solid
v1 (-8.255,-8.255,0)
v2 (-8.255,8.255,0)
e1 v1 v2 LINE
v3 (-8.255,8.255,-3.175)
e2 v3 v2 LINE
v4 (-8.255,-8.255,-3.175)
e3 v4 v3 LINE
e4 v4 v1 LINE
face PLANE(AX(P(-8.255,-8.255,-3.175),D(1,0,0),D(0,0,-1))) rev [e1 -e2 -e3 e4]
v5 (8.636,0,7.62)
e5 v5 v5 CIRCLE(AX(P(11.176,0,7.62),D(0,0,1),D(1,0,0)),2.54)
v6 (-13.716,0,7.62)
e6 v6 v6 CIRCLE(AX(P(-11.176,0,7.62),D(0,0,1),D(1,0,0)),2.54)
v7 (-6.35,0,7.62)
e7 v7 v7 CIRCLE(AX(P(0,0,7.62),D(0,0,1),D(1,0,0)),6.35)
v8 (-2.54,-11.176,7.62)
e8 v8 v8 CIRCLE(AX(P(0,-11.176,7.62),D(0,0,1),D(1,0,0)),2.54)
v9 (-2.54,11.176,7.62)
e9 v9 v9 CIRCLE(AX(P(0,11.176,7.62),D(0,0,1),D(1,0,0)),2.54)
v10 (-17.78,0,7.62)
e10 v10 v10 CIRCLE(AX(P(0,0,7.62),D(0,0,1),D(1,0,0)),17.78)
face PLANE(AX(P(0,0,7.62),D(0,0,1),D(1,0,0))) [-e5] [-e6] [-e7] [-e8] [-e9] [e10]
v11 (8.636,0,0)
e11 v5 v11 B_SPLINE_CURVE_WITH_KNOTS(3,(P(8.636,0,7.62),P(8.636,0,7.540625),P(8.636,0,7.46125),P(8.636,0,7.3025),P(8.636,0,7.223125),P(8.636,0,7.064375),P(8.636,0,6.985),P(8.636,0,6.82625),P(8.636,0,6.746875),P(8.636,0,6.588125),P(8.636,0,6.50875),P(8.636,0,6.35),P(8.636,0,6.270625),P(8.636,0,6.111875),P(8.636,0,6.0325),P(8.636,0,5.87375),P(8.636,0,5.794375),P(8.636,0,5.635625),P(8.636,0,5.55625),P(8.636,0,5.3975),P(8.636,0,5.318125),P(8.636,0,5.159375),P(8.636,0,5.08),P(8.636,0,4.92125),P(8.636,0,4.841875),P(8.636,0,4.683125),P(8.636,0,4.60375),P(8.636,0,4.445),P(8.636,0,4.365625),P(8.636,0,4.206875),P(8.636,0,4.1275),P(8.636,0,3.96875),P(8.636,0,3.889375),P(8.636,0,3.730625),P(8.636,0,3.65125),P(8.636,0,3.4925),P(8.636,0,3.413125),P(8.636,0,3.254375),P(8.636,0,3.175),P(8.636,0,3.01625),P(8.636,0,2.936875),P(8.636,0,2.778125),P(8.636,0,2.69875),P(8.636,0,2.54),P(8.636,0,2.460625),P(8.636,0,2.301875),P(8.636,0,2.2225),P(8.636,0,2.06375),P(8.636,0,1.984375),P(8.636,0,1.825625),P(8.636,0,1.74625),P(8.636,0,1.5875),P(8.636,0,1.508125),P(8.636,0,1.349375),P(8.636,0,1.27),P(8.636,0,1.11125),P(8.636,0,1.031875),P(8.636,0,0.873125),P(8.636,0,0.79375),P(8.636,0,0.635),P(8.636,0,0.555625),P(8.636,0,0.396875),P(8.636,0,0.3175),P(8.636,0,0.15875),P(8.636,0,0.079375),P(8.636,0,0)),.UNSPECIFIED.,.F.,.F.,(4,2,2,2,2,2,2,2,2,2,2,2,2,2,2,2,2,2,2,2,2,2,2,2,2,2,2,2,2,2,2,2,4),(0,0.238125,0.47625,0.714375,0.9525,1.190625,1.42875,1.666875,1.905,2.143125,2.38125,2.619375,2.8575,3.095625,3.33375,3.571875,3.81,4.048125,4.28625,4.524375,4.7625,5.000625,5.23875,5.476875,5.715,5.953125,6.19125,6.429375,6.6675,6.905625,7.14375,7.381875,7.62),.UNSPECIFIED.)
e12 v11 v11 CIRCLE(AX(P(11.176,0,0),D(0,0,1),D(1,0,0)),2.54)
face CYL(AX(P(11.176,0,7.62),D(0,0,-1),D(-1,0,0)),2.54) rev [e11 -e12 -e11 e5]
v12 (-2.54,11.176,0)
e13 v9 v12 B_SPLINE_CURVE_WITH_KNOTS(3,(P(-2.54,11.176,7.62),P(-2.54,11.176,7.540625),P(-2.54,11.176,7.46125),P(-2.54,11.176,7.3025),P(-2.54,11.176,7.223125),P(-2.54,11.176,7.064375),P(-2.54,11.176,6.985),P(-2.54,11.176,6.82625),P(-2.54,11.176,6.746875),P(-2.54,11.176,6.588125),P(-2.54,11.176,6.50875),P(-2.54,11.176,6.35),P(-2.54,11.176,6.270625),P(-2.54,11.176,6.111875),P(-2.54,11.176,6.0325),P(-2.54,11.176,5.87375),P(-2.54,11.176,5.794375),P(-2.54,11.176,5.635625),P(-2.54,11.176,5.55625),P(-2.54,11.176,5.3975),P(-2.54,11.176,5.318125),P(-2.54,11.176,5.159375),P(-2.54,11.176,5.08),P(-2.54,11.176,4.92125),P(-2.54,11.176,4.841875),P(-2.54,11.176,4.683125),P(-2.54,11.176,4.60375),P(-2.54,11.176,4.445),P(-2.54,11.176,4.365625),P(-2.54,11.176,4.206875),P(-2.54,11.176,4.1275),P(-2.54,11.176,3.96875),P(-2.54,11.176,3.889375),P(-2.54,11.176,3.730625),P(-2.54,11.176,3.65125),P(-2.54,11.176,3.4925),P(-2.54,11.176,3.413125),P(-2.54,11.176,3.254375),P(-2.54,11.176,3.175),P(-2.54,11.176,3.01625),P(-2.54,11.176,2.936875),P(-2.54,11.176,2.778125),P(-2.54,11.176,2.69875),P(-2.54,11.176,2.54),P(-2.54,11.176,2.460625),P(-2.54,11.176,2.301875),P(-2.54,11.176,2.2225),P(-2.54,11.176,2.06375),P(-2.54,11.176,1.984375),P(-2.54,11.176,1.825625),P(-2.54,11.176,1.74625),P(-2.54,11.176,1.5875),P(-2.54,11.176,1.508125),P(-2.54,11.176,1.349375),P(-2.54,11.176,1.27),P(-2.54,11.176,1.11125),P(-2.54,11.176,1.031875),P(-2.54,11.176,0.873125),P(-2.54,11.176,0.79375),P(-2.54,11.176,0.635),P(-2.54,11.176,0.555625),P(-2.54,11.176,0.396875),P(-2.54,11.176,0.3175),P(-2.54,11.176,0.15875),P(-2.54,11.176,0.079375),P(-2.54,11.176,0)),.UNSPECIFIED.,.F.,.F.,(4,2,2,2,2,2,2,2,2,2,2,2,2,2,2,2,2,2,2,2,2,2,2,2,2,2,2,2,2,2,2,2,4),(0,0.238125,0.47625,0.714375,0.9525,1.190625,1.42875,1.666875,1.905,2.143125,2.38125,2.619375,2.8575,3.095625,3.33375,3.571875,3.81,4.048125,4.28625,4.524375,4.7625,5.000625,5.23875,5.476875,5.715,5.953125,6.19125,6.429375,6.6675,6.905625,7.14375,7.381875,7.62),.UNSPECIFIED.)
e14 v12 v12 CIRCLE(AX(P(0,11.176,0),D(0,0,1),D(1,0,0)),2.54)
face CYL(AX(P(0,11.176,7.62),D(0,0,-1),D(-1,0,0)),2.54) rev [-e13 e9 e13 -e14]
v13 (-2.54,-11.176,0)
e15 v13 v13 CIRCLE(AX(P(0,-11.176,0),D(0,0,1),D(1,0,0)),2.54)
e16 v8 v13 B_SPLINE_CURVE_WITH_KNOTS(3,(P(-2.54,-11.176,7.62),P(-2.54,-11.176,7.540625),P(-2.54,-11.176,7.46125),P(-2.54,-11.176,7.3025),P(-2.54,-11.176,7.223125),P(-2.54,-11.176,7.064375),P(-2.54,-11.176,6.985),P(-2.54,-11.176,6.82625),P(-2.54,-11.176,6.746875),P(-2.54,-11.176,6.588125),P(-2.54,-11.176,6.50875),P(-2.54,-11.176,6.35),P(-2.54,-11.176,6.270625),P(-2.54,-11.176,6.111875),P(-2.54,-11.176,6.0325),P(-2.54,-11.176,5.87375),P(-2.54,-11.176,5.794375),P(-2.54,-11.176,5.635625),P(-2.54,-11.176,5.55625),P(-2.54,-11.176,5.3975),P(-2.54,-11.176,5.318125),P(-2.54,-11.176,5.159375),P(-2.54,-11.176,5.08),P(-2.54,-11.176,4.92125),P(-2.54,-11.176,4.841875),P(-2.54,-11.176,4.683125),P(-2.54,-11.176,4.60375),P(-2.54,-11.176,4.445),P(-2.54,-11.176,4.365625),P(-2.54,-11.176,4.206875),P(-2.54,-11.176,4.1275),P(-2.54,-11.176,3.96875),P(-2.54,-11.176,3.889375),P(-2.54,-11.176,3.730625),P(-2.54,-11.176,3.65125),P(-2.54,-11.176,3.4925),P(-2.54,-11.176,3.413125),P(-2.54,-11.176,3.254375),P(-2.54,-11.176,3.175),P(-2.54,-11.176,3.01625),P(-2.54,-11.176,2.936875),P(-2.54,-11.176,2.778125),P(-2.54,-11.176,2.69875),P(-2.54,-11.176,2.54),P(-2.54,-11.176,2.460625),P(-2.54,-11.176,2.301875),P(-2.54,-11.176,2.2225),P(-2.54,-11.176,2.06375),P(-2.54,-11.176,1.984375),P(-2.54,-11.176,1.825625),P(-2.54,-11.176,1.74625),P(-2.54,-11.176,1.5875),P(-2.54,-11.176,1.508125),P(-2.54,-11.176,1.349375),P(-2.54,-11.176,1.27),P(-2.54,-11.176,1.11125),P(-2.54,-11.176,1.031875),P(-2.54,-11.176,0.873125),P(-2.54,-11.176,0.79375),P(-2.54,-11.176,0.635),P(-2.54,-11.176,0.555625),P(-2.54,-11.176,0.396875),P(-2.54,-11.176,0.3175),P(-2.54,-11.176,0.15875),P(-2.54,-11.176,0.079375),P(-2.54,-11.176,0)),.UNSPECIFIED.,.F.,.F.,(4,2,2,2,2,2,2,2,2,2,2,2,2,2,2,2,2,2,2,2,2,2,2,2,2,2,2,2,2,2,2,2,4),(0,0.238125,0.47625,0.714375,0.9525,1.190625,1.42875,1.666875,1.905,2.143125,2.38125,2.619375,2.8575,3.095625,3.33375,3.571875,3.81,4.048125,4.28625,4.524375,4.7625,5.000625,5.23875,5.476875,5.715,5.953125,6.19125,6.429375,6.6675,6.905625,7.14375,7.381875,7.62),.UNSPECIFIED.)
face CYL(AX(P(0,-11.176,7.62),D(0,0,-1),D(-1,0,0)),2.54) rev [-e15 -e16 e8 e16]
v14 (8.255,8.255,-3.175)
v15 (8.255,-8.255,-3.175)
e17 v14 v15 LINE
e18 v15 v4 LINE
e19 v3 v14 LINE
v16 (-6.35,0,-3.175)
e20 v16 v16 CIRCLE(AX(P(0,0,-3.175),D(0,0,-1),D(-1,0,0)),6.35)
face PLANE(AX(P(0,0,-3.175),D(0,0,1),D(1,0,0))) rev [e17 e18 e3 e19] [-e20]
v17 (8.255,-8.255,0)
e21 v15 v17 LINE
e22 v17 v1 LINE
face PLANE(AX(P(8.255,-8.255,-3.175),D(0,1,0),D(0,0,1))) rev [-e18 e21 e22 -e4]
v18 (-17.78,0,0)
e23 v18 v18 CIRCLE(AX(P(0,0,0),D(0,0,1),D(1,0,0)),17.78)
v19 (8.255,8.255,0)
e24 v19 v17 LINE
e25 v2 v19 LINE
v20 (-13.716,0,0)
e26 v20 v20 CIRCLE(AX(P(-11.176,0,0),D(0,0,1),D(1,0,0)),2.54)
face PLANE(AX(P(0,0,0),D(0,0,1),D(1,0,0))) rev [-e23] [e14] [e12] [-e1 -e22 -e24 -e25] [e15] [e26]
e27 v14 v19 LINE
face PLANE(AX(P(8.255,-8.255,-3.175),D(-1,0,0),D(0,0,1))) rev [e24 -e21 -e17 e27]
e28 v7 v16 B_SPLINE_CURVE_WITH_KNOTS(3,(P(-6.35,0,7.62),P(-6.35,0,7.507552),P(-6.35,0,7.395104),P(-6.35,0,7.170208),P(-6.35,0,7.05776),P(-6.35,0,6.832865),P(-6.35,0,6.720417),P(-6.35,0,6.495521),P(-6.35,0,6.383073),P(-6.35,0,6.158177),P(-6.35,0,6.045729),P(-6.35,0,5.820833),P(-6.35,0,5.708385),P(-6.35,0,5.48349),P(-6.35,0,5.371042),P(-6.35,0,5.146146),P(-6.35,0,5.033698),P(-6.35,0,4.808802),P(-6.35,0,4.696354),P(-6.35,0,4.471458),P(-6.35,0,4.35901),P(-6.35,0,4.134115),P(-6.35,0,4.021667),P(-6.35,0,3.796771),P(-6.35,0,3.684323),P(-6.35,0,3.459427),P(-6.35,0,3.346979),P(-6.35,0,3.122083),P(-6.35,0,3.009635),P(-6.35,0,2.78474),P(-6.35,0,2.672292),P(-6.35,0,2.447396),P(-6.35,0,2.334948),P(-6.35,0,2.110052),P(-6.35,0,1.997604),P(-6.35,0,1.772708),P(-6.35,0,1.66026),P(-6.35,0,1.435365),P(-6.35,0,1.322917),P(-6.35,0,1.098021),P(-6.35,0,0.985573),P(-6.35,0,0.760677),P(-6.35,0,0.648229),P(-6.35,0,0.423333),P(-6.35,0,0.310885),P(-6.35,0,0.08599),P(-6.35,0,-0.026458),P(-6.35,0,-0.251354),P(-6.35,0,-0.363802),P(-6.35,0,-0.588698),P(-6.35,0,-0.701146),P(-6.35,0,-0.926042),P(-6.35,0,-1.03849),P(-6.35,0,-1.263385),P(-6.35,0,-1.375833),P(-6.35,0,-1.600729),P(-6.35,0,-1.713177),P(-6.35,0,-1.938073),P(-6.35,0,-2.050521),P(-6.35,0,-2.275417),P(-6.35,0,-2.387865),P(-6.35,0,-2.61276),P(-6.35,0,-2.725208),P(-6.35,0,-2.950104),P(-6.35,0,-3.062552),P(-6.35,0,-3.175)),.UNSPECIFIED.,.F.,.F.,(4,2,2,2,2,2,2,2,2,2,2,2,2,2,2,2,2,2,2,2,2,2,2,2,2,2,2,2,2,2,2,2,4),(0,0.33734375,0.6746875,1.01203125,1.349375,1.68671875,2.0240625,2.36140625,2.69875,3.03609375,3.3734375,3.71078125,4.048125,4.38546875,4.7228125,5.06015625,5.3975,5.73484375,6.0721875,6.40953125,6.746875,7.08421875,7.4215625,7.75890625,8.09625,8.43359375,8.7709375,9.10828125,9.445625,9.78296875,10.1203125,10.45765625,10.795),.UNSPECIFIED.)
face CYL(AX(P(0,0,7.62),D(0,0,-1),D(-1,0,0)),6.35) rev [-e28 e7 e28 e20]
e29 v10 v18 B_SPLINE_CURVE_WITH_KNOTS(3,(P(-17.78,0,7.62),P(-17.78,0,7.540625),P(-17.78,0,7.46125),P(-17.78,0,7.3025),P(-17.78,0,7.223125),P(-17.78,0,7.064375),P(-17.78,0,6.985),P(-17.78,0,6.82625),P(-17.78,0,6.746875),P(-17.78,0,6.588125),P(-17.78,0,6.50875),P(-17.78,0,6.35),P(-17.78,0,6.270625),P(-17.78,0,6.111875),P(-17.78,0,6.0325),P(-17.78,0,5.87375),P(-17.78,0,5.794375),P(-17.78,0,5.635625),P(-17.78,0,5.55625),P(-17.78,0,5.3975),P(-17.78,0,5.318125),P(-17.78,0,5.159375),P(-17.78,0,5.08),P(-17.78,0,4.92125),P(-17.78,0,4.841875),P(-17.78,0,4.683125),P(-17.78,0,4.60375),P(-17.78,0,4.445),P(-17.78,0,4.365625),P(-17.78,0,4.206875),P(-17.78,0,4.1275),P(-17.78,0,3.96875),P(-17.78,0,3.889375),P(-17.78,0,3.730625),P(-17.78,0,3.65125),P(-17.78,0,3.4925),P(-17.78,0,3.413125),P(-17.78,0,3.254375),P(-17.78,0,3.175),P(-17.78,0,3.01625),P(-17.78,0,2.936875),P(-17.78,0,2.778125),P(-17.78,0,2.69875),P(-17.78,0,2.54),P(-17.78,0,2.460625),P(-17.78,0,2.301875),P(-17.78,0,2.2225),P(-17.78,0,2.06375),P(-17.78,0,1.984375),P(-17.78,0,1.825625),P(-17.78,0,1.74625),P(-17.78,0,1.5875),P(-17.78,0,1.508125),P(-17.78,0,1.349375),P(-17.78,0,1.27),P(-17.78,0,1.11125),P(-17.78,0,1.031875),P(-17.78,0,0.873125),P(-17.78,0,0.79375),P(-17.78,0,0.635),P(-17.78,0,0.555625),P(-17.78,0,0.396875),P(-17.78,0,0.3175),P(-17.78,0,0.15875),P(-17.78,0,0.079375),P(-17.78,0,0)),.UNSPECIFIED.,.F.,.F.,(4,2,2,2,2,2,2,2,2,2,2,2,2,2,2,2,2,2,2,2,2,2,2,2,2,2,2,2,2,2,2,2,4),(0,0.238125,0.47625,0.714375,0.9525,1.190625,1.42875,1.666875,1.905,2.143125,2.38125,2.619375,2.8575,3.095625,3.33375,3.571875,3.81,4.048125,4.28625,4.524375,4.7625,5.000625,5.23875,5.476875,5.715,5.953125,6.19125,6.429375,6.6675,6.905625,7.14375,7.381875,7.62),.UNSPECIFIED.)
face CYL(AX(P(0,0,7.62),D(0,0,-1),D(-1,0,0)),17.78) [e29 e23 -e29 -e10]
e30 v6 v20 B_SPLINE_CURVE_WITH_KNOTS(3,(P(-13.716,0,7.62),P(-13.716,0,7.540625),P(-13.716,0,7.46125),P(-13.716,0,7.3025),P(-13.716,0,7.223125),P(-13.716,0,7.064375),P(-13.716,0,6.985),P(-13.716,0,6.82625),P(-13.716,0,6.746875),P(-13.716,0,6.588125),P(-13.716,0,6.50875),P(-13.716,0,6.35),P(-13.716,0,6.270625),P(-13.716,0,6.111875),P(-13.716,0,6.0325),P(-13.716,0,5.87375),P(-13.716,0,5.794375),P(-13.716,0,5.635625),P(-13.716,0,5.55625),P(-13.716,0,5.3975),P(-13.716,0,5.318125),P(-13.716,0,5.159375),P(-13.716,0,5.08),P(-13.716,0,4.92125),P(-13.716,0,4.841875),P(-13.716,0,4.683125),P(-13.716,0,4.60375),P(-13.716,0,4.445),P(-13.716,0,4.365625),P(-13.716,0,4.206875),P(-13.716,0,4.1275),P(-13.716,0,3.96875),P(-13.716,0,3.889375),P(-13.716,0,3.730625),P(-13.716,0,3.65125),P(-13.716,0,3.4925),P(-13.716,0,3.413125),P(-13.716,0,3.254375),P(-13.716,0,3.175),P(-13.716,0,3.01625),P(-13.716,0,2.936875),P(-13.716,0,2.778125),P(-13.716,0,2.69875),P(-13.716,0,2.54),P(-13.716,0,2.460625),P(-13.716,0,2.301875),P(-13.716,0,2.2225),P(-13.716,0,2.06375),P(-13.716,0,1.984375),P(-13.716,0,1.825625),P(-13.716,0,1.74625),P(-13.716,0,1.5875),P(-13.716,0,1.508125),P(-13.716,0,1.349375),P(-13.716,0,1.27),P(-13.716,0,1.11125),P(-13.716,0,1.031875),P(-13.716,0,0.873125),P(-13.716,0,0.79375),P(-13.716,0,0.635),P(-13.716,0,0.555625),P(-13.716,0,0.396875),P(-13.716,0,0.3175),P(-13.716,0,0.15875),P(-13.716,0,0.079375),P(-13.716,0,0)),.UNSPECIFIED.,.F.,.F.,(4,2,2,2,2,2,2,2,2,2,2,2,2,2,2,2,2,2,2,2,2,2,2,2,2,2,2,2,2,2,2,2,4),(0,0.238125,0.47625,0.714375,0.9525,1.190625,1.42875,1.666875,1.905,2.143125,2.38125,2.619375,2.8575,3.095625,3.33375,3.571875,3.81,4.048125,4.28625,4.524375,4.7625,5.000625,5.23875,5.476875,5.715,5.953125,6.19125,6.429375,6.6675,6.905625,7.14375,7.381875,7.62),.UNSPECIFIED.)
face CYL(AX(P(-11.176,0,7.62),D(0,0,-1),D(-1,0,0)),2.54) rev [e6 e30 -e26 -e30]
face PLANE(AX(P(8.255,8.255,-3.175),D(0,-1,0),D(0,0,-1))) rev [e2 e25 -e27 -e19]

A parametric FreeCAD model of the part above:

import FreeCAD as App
import Part
import Sketcher

V = App.Vector
Q = App.Units.Quantity

doc = App.newDocument("Part")
body = doc.addObject("PartDesign::Body", "Body")

sketch1 = body.newObject("Sketcher::SketchObject", "Sketch")
sketch1.AttachmentSupport = (doc.getObject("XY_Plane"), [""])
sketch1.MapMode = "FlatFace"
sketch1.addGeometry([
    Part.Circle(V(0, 0, 0), V(0, 0, 1), 17.78),
    Part.Circle(V(11.176, 0, 0), V(0, 0, 1), 2.54),
    Part.Circle(V(0, 0, 0), V(0, 0, 1), 6.35),
    Part.Circle(V(0, 11.176, 0), V(0, 0, 1), 2.54),
    Part.Circle(V(-11.176, 0, 0), V(0, 0, 1), 2.54),
    Part.Circle(V(0, -11.176, 0), V(0, 0, 1), 2.54),
], False)
sketch1.addConstraint([
    Sketcher.Constraint("Coincident", 0, 3, -1, 1),
    Sketcher.Constraint("Coincident", 2, 3, -1, 1),
    Sketcher.Constraint("Equal", 1, 3),
    Sketcher.Constraint("Equal", 3, 4),
    Sketcher.Constraint("Equal", 4, 5),
    Sketcher.Constraint("Symmetric", 1, 3, 4, 3, -1, 1),
    Sketcher.Constraint("Symmetric", 3, 3, 5, 3, -1, 1),
    Sketcher.Constraint("PointOnObject", 1, 3, -1),
    Sketcher.Constraint("PointOnObject", 3, 3, -2),
    Sketcher.Constraint("Diameter", 0, Q("1.4 in")),
    Sketcher.Constraint("Diameter", 1, Q("0.2 in")),
    Sketcher.Constraint("Diameter", 2, Q("0.5 in")),
    Sketcher.Constraint("DistanceX", -1, 1, 1, 3, Q("0.44 in")),
    Sketcher.Constraint("DistanceY", -1, 1, 3, 3, Q("0.44 in")),
])
pad1 = body.newObject("PartDesign::Pad", "Pad")
pad1.Profile = sketch1
pad1.Length = Q("0.3 in")

sketch2 = body.newObject("Sketcher::SketchObject", "Sketch001")
sketch2.AttachmentSupport = (doc.getObject("XY_Plane"), [""])
sketch2.MapMode = "FlatFace"
sketch2.AttachmentOffset = App.Placement(V(0, 0, -0.125 * 25.4), App.Rotation())
sketch2.addGeometry([
    Part.LineSegment(V(8.255, 8.255, 0), V(8.255, -8.255, 0)),
    Part.LineSegment(V(8.255, -8.255, 0), V(-8.255, -8.255, 0)),
    Part.LineSegment(V(-8.255, -8.255, 0), V(-8.255, 8.255, 0)),
    Part.LineSegment(V(-8.255, 8.255, 0), V(8.255, 8.255, 0)),
    Part.Circle(V(0, 0, 0), V(0, 0, 1), 6.35),
], False)
sketch2.addConstraint([
    Sketcher.Constraint("Coincident", 0, 2, 1, 1),
    Sketcher.Constraint("Coincident", 1, 2, 2, 1),
    Sketcher.Constraint("Coincident", 2, 2, 3, 1),
    Sketcher.Constraint("Coincident", 3, 2, 0, 1),
    Sketcher.Constraint("Vertical", 0),
    Sketcher.Constraint("Horizontal", 1),
    Sketcher.Constraint("Vertical", 2),
    Sketcher.Constraint("Horizontal", 3),
    Sketcher.Constraint("Coincident", 4, 3, -1, 1),
    Sketcher.Constraint("Symmetric", 0, 2, 2, 2, -1, 1),
    Sketcher.Constraint("Equal", 3, 0),
    Sketcher.Constraint("Diameter", 4, Q("0.5 in")),
    Sketcher.Constraint("DistanceX", 1, 2, 1, 1, Q("0.65 in")),
])
pad2 = body.newObject("PartDesign::Pad", "Pad001")
pad2.Profile = sketch2
pad2.Length = Q("0.125 in")

doc.recompute()
